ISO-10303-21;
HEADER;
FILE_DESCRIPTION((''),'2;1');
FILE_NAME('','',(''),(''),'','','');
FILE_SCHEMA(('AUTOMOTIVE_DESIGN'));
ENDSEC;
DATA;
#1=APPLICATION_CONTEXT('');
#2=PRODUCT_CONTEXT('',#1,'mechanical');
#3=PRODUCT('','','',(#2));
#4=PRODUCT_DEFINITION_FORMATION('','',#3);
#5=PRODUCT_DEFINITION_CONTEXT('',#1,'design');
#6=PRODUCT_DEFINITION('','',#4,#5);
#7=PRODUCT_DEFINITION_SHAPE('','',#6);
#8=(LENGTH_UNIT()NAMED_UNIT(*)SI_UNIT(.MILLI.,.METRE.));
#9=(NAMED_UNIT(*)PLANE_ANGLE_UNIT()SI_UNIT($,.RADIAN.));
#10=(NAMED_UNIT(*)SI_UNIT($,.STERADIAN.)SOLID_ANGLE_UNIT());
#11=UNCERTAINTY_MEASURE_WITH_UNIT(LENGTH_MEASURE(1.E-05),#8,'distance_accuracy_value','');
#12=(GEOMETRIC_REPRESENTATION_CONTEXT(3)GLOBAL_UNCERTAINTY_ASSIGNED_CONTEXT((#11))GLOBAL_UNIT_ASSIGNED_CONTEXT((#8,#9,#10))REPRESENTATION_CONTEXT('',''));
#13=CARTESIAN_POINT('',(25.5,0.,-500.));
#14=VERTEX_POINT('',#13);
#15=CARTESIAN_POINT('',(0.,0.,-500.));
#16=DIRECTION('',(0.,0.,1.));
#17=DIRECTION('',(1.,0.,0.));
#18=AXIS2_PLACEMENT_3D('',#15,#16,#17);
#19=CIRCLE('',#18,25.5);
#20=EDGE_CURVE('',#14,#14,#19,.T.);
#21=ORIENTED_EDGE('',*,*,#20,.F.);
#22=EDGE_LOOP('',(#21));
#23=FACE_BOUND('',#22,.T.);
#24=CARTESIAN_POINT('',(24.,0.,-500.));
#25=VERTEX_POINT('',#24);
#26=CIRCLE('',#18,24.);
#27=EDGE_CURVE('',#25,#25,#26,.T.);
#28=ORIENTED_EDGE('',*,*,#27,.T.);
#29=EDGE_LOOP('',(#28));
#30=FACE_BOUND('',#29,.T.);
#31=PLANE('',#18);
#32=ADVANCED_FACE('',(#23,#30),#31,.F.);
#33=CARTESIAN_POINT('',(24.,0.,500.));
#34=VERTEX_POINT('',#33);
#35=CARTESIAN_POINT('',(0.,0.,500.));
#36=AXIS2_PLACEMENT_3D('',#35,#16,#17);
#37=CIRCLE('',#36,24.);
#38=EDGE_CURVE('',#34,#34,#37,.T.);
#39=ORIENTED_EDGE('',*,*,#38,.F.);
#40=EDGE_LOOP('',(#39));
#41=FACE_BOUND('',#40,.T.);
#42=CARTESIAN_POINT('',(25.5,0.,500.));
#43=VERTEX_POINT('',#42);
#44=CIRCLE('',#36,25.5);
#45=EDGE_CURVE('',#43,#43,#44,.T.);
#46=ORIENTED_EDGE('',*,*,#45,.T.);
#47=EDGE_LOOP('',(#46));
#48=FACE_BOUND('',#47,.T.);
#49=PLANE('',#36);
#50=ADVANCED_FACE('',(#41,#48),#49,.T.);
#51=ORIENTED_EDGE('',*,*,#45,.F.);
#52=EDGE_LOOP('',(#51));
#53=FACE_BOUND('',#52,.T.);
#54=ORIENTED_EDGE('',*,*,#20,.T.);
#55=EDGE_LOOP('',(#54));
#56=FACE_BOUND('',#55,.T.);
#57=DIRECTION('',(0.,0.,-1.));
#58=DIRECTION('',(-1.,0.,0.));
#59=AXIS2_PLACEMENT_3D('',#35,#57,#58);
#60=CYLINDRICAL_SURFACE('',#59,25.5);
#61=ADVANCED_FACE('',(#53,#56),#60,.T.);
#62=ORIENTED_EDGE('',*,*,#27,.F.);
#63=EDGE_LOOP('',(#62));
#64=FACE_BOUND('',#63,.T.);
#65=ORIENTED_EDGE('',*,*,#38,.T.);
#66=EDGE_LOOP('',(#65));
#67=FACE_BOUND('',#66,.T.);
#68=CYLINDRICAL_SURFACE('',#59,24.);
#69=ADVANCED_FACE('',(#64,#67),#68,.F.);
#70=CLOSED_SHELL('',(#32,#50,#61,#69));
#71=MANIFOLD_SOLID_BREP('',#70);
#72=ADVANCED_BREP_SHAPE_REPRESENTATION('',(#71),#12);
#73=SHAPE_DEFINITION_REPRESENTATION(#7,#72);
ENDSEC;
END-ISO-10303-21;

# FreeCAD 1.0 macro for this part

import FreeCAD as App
import Part
import Sketcher

V = App.Vector
Q = App.Units.Quantity

doc = App.newDocument("Part")
params = doc.addObject("Spreadsheet::Sheet", "Params")
for row, (alias, value) in enumerate([
    ("sketch1_diameter", "51 mm"),
    ("sketch1_diameter2", "48 mm"),
    ("pad1_length", "1000 mm"),
], start=1):
    params.set(f"A{row}", alias)
    params.set(f"B{row}", "=" + value)
    params.setAlias(f"B{row}", alias)

body = doc.addObject("PartDesign::Body", "Body")

# Sketch on XY plane
sketch1 = body.newObject("Sketcher::SketchObject", "Sketch")
sketch1.AttachmentSupport = (doc.getObject("XY_Plane"), [""])
sketch1.MapMode = "FlatFace"
sketch1.addGeometry([
    Part.Circle(V(0, 0, 0), V(0, 0, 1), 26),
    Part.Circle(V(0, 0, 0), V(0, 0, 1), 24),
], False)
sketch1.addConstraint([
    Sketcher.Constraint("Coincident", 0, 3, -1, 1),
    Sketcher.Constraint("Coincident", 1, 3, -1, 1),
    Sketcher.Constraint("Diameter", 0, Q("51 mm")),
    Sketcher.Constraint("Diameter", 1, Q("48 mm")),
])
sketch1.setExpression("Constraints[2]", "Params.sketch1_diameter")
sketch1.setExpression("Constraints[3]", "Params.sketch1_diameter2")
pad1 = body.newObject("PartDesign::Pad", "Pad")
pad1.Profile = sketch1
pad1.setExpression("Length", "Params.pad1_length")
pad1.Midplane = True

doc.recompute()
